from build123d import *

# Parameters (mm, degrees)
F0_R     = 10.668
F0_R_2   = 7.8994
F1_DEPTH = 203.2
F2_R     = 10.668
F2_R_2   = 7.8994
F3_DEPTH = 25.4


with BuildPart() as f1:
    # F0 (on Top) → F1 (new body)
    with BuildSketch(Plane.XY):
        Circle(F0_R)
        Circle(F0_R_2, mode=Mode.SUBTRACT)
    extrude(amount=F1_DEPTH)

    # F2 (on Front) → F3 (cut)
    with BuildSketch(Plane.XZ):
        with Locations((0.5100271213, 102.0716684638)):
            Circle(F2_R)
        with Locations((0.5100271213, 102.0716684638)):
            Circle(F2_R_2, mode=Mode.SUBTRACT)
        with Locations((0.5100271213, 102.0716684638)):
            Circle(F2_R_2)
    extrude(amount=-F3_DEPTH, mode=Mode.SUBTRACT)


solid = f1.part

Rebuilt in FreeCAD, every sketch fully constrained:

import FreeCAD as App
import Part
import Sketcher
from FreeCAD import Vector
Q = App.Units.Quantity

doc = App.newDocument("Part")
params = doc.addObject("Spreadsheet::Sheet", "Params")
for row, (alias, value) in enumerate([
    ("sketch1_diameter", "0.84 in"),
    ("sketch1_diameter2", "0.622 in"),
    ("pad1_length", "8 in"),
    ("sketch2_diameter", "0.84 in"),
    ("pocket1_length", "1 in"),
], start=1):
    params.set(f"A{row}", alias)
    params.set(f"B{row}", "=" + value)
    params.setAlias(f"B{row}", alias)

body = doc.addObject("PartDesign::Body", "Body")

# Sketch on XY plane
sketch1 = body.newObject("Sketcher::SketchObject", "Sketch")
sketch1.AttachmentSupport = (doc.getObject("XY_Plane"), [""])
sketch1.MapMode = "FlatFace"
sketch1.addGeometry([
    Part.Circle(Vector(0, 0, 0), Vector(0, 0, 1), 11),
    Part.Circle(Vector(0, 0, 0), Vector(0, 0, 1), 8),
], False)
sketch1.addConstraint([
    Sketcher.Constraint("Coincident", 0, 3, -1, 1),
    Sketcher.Constraint("Coincident", 1, 3, -1, 1),
    Sketcher.Constraint("Diameter", 0, Q("0.84 in")),
    Sketcher.Constraint("Diameter", 1, Q("0.622 in")),
])
sketch1.setExpression("Constraints[2]", "Params.sketch1_diameter")
sketch1.setExpression("Constraints[3]", "Params.sketch1_diameter2")
pad1 = body.newObject("PartDesign::Pad", "Pad")
pad1.Profile = sketch1
pad1.setExpression("Length", "Params.pad1_length")

# Sketch on XZ plane
sketch2 = body.newObject("Sketcher::SketchObject", "Sketch001")
sketch2.AttachmentSupport = (doc.getObject("XZ_Plane"), [""])
sketch2.MapMode = "FlatFace"
sketch2.addGeometry(Part.Circle(Vector(1, 102, 0), Vector(0, 0, 1), 11), False)
sketch2.addConstraint([
    Sketcher.Constraint("Diameter", 0, Q("0.84 in")),
    Sketcher.Constraint("DistanceY", -1, 1, 0, 3, Q("102.071668 mm")),
    Sketcher.Constraint("DistanceX", -1, 1, 0, 3, Q("0.510027 mm")),
])
sketch2.setExpression("Constraints[0]", "Params.sketch2_diameter")
pocket1 = body.newObject("PartDesign::Pocket", "Pocket")
pocket1.Profile = sketch2
pocket1.setExpression("Length", "Params.pocket1_length")

doc.recompute()
